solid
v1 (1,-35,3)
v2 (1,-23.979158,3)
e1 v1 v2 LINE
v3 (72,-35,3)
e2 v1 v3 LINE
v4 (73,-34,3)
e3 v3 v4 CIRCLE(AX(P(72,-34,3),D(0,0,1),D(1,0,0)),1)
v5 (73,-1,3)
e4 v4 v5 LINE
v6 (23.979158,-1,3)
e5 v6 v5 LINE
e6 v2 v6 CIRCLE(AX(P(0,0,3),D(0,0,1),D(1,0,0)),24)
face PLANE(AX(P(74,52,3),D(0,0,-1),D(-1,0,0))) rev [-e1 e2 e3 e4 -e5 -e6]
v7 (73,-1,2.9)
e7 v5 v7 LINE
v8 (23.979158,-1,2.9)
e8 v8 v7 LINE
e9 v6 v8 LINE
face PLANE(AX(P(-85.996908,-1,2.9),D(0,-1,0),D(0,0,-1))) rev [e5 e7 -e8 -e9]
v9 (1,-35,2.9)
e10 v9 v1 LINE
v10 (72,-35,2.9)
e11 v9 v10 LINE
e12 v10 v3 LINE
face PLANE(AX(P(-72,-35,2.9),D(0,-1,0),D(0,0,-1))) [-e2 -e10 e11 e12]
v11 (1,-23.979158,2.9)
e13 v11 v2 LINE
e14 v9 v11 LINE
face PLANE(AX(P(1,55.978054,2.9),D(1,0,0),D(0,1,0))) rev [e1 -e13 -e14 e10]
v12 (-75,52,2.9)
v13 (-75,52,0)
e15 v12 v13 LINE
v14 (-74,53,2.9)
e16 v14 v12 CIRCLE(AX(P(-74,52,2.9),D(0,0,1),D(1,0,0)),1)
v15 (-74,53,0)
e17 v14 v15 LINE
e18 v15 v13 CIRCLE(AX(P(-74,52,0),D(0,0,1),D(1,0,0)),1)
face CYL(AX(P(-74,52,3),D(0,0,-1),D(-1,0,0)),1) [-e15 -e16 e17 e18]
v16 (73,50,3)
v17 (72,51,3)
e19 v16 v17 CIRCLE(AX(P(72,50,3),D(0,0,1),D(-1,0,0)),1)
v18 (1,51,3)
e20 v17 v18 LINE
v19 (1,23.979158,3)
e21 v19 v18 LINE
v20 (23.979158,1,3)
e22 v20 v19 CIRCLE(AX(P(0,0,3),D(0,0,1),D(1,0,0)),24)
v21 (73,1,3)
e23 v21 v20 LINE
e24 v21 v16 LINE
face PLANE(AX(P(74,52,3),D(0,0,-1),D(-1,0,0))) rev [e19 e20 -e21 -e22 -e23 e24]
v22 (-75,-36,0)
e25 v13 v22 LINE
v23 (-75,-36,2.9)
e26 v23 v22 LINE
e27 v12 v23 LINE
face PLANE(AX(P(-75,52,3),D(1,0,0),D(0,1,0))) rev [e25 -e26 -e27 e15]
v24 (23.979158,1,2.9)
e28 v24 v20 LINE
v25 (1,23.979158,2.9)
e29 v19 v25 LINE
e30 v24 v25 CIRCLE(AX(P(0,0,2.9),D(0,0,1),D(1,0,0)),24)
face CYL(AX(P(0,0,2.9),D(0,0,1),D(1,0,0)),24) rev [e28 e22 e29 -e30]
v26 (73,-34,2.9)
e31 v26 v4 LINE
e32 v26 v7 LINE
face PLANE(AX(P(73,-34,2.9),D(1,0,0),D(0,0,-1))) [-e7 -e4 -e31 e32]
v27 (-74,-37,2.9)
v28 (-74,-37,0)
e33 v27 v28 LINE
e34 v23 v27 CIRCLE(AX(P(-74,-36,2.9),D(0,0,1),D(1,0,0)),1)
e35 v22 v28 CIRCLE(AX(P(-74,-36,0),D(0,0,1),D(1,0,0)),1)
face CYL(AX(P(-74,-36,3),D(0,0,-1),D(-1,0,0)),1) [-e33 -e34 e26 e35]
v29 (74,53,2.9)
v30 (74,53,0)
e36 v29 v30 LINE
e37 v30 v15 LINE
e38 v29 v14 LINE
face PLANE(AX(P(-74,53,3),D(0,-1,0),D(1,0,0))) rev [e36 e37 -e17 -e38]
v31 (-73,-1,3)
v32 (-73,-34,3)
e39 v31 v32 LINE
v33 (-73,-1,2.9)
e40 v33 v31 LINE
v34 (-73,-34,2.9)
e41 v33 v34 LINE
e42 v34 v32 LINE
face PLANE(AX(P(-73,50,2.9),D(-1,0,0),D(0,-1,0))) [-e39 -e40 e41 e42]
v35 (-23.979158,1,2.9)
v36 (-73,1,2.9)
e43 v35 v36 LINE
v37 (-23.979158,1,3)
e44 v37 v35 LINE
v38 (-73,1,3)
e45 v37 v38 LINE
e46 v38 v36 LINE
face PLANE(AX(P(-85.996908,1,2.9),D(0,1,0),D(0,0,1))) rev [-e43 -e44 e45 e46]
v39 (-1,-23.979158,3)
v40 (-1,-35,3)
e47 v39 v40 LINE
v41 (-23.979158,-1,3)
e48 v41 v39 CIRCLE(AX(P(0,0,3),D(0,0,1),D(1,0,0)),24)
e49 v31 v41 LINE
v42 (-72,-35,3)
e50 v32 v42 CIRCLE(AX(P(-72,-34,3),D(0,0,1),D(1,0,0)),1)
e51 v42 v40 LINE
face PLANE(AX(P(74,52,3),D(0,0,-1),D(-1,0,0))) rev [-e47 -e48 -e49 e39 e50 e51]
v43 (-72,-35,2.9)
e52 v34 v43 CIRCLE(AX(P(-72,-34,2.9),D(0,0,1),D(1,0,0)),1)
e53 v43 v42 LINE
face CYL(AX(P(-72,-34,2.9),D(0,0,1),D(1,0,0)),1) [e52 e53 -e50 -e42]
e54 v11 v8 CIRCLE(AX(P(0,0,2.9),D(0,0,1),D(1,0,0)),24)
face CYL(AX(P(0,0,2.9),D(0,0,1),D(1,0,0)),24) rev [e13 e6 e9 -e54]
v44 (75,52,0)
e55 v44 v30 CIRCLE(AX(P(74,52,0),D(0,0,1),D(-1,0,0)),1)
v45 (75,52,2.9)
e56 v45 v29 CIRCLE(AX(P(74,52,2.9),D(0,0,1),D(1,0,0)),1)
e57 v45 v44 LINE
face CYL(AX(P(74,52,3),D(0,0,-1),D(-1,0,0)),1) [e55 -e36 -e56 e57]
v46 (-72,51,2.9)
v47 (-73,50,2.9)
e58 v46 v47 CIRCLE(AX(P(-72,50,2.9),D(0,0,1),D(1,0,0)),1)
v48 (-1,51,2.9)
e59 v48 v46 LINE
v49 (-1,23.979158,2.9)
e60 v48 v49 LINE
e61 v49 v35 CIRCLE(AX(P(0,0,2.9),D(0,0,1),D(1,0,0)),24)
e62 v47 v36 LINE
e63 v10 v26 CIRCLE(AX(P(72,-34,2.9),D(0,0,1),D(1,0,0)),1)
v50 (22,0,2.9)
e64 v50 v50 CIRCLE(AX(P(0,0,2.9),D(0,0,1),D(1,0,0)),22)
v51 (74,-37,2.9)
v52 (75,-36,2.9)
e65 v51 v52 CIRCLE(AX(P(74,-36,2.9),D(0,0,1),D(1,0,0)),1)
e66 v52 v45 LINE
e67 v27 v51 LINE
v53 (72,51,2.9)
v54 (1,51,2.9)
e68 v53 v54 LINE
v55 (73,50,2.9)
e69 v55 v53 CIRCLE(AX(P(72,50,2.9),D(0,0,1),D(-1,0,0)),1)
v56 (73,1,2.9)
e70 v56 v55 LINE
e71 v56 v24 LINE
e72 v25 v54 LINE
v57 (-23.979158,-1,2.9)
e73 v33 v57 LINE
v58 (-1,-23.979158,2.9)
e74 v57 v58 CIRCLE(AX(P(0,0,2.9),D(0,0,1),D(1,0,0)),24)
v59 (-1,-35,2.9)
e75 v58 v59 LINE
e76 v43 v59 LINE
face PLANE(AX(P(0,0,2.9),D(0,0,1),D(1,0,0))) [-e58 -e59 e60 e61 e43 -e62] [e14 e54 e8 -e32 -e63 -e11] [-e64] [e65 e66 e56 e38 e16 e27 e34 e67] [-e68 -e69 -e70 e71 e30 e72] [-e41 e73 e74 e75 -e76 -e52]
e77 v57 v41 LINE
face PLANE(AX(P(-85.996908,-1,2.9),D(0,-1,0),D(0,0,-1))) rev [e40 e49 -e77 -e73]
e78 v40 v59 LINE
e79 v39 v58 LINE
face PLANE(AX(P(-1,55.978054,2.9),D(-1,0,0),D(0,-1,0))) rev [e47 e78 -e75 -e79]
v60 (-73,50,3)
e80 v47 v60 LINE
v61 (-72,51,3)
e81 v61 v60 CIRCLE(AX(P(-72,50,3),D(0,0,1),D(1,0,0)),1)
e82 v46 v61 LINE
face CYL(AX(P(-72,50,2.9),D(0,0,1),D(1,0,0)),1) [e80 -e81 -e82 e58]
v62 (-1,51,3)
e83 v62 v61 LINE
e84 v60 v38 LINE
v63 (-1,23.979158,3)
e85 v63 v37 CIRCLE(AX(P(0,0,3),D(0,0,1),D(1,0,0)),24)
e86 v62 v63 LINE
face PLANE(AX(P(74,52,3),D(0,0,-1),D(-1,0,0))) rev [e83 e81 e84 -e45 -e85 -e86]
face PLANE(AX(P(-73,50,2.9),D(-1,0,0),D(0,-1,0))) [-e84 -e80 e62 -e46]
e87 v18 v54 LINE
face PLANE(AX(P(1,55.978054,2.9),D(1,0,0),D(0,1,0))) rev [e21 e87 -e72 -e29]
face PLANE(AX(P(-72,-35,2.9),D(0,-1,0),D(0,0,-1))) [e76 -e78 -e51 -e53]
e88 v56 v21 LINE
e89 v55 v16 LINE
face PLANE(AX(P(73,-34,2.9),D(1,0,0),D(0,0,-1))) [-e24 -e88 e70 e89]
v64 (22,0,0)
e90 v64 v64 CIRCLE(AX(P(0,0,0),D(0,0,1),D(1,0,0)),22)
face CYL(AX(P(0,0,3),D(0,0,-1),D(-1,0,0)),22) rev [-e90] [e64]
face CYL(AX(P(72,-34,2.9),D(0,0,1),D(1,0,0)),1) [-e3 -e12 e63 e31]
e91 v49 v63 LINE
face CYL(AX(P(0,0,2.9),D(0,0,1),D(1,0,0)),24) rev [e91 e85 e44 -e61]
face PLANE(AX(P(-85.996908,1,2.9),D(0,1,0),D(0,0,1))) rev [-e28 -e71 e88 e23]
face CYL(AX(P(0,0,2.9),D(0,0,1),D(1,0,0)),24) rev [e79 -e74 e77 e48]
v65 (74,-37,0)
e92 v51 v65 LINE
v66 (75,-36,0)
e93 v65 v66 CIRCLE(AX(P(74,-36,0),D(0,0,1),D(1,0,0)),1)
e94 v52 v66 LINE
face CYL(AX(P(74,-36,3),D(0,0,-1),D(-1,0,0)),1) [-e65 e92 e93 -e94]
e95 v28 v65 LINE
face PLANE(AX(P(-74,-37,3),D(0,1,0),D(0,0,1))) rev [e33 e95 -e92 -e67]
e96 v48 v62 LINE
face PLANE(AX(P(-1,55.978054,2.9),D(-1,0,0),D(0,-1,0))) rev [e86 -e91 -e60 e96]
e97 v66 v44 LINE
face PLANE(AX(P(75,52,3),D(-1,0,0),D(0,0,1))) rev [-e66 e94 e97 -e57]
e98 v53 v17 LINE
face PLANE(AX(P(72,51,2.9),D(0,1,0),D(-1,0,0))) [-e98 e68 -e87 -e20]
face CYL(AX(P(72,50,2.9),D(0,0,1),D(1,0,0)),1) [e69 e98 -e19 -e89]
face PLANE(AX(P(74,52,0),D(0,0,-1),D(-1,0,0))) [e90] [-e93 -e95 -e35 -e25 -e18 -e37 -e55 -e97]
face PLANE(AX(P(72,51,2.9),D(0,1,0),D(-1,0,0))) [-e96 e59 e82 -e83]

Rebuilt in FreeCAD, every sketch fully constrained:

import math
import FreeCAD as App
import Part
import Sketcher

doc = App.newDocument("Part")
params = doc.addObject("Spreadsheet::Sheet", "Params")
for row, (alias, value) in enumerate([
    ("sketch1_diameter", "44 mm"),
    ("sketch1_radius", "1 mm"),
    ("sketch1_width", "148 mm"),
    ("sketch1_height", "88 mm"),
    ("pad1_length", "3 mm"),
    ("sketch2_diameter", "48 mm"),
    ("pocket1_length", "0.1 mm"),
    ("sketch3_radius", "1 mm"),
    ("sketch3_width", "144 mm"),
    ("sketch3_height", "84 mm"),
    ("pocket2_length", "0.1 mm"),
    ("sketch4_width", "2 mm"),
    ("pocket3_length", "0.1 mm"),
    ("sketch5_height", "2 mm"),
    ("pocket4_length", "0.1 mm"),
], start=1):
    params.set(f"A{row}", alias)
    params.set(f"B{row}", "=" + value)
    params.setAlias(f"B{row}", alias)

body = doc.addObject("PartDesign::Body", "Body")

sketch1 = body.newObject("Sketcher::SketchObject", "Sketch")
sketch1.AttachmentSupport = (doc.getObject("XY_Plane"), [""])
sketch1.MapMode = "FlatFace"
sketch1.addGeometry([
    Part.LineSegment(App.Vector(74, 53, 0), App.Vector(-74, 53, 0)),
    Part.ArcOfCircle(Part.Circle(App.Vector(-74, 52, 0), App.Vector(0, 0, 1), 1), math.radians(90), math.radians(180)),
    Part.LineSegment(App.Vector(-75, 52, 0), App.Vector(-75, -36, 0)),
    Part.ArcOfCircle(Part.Circle(App.Vector(-74, -36, 0), App.Vector(0, 0, 1), 1), math.radians(-180), math.radians(-90)),
    Part.LineSegment(App.Vector(-74, -37, 0), App.Vector(74, -37, 0)),
    Part.ArcOfCircle(Part.Circle(App.Vector(74, -36, 0), App.Vector(0, 0, 1), 1), math.radians(-90), math.radians(0)),
    Part.LineSegment(App.Vector(75, -36, 0), App.Vector(75, 52, 0)),
    Part.ArcOfCircle(Part.Circle(App.Vector(74, 52, 0), App.Vector(0, 0, 1), 1), math.radians(0), math.radians(90)),
    Part.Circle(App.Vector(0, 0, 0), App.Vector(0, 0, 1), 22),
], False)
sketch1.addConstraint([
    Sketcher.Constraint("Tangent", 0, 2, 1, 1),
    Sketcher.Constraint("Tangent", 1, 2, 2, 1),
    Sketcher.Constraint("Tangent", 2, 2, 3, 1),
    Sketcher.Constraint("Tangent", 3, 2, 4, 1),
    Sketcher.Constraint("Tangent", 4, 2, 5, 1),
    Sketcher.Constraint("Tangent", 5, 2, 6, 1),
    Sketcher.Constraint("Tangent", 6, 2, 7, 1),
    Sketcher.Constraint("Tangent", 7, 2, 0, 1),
    Sketcher.Constraint("Horizontal", 0),
    Sketcher.Constraint("Vertical", 2),
    Sketcher.Constraint("Horizontal", 4),
    Sketcher.Constraint("Vertical", 6),
    Sketcher.Constraint("Coincident", 8, 3, -1, 1),
    Sketcher.Constraint("Equal", 1, 3),
    Sketcher.Constraint("Equal", 3, 5),
    Sketcher.Constraint("Equal", 5, 7),
    Sketcher.Constraint("Diameter", 8, 44.0),
    Sketcher.Constraint("Radius", 1, 1.0),
    Sketcher.Constraint("DistanceX", 0, 2, 0, 1, 148.0),
    Sketcher.Constraint("DistanceY", 2, 2, 2, 1, 88.0),
    Sketcher.Constraint("DistanceX", 1, 3, -1, 1, 74.0),
    Sketcher.Constraint("DistanceY", -1, 1, 1, 3, 52.0),
])
sketch1.setExpression("Constraints[16]", "Params.sketch1_diameter")
sketch1.setExpression("Constraints[17]", "Params.sketch1_radius")
sketch1.setExpression("Constraints[18]", "Params.sketch1_width")
sketch1.setExpression("Constraints[19]", "Params.sketch1_height")
pad1 = body.newObject("PartDesign::Pad", "Pad")
pad1.Profile = sketch1
pad1.setExpression("Length", "Params.pad1_length")

sketch2 = body.newObject("Sketcher::SketchObject", "Sketch001")
sketch2.AttachmentSupport = (doc.getObject("XY_Plane"), [""])
sketch2.MapMode = "FlatFace"
sketch2.AttachmentOffset = App.Placement(App.Vector(0, 0, 3), App.Rotation())
sketch2.addGeometry(Part.Circle(App.Vector(0, 0, 0), App.Vector(0, 0, 1), 24), False)
sketch2.addConstraint([
    Sketcher.Constraint("Coincident", 0, 3, -1, 1),
    Sketcher.Constraint("Diameter", 0, 48.0),
])
sketch2.setExpression("Constraints[1]", "Params.sketch2_diameter")
pocket1 = body.newObject("PartDesign::Pocket", "Pocket")
pocket1.Profile = sketch2
pocket1.setExpression("Length", "Params.pocket1_length")

sketch3 = body.newObject("Sketcher::SketchObject", "Sketch002")
sketch3.AttachmentSupport = (doc.getObject("XY_Plane"), [""])
sketch3.MapMode = "FlatFace"
sketch3.AttachmentOffset = App.Placement(App.Vector(0, 0, 3), App.Rotation())
sketch3.addGeometry([
    Part.LineSegment(App.Vector(-80.464019, 58.349293, 0), App.Vector(-80.464019, -42.033128, 0)),
    Part.LineSegment(App.Vector(-80.464019, -42.033128, 0), App.Vector(81.254432, -42.033128, 0)),
    Part.LineSegment(App.Vector(81.254432, -42.033128, 0), App.Vector(81.254432, 58.349293, 0)),
    Part.LineSegment(App.Vector(81.254432, 58.349293, 0), App.Vector(-80.464019, 58.349293, 0)),
    Part.LineSegment(App.Vector(-72, 51, 0), App.Vector(72, 51, 0)),
    Part.ArcOfCircle(Part.Circle(App.Vector(72, 50, 0), App.Vector(0, 0, 1), 1), math.radians(0), math.radians(90)),
    Part.LineSegment(App.Vector(73, 50, 0), App.Vector(73, -34, 0)),
    Part.ArcOfCircle(Part.Circle(App.Vector(72, -34, 0), App.Vector(0, 0, 1), 1), math.radians(-90), math.radians(0)),
    Part.LineSegment(App.Vector(72, -35, 0), App.Vector(-72, -35, 0)),
    Part.ArcOfCircle(Part.Circle(App.Vector(-72, -34, 0), App.Vector(0, 0, 1), 1), math.radians(-180), math.radians(-90)),
    Part.LineSegment(App.Vector(-73, -34, 0), App.Vector(-73, 50, 0)),
    Part.ArcOfCircle(Part.Circle(App.Vector(-72, 50, 0), App.Vector(0, 0, 1), 1), math.radians(90), math.radians(180)),
], False)
sketch3.addConstraint([
    Sketcher.Constraint("Coincident", 0, 2, 1, 1),
    Sketcher.Constraint("Coincident", 1, 2, 2, 1),
    Sketcher.Constraint("Coincident", 2, 2, 3, 1),
    Sketcher.Constraint("Coincident", 3, 2, 0, 1),
    Sketcher.Constraint("Tangent", 4, 2, 5, 2),
    Sketcher.Constraint("Tangent", 5, 1, 6, 1),
    Sketcher.Constraint("Tangent", 6, 2, 7, 2),
    Sketcher.Constraint("Tangent", 7, 1, 8, 1),
    Sketcher.Constraint("Tangent", 8, 2, 9, 2),
    Sketcher.Constraint("Tangent", 9, 1, 10, 1),
    Sketcher.Constraint("Tangent", 10, 2, 11, 2),
    Sketcher.Constraint("Tangent", 11, 1, 4, 1),
    Sketcher.Constraint("Vertical", 0),
    Sketcher.Constraint("Horizontal", 1),
    Sketcher.Constraint("Vertical", 2),
    Sketcher.Constraint("Horizontal", 3),
    Sketcher.Constraint("Horizontal", 4),
    Sketcher.Constraint("Vertical", 6),
    Sketcher.Constraint("Horizontal", 8),
    Sketcher.Constraint("Vertical", 10),
    Sketcher.Constraint("Equal", 5, 7),
    Sketcher.Constraint("Equal", 7, 9),
    Sketcher.Constraint("Equal", 9, 11),
    Sketcher.Constraint("Radius", 5, 1.0),
    Sketcher.Constraint("DistanceX", 4, 1, 4, 2, 144.0),
    Sketcher.Constraint("DistanceY", 6, 2, 6, 1, 84.0),
    Sketcher.Constraint("DistanceX", -1, 1, 5, 3, 72.0),
    Sketcher.Constraint("DistanceY", -1, 1, 5, 3, 50.0),
    Sketcher.Constraint("DistanceX", 1, 1, 1, 2, 161.71845),
    Sketcher.Constraint("DistanceY", 0, 2, 0, 1, 100.38242),
    Sketcher.Constraint("DistanceX", 0, 2, -1, 1, 80.464019),
    Sketcher.Constraint("DistanceY", 0, 2, -1, 1, 42.033128),
])
sketch3.setExpression("Constraints[23]", "Params.sketch3_radius")
sketch3.setExpression("Constraints[24]", "Params.sketch3_width")
sketch3.setExpression("Constraints[25]", "Params.sketch3_height")
pocket2 = body.newObject("PartDesign::Pocket", "Pocket001")
pocket2.Profile = sketch3
pocket2.setExpression("Length", "Params.pocket2_length")

sketch4 = body.newObject("Sketcher::SketchObject", "Sketch003")
sketch4.AttachmentSupport = (doc.getObject("XY_Plane"), [""])
sketch4.MapMode = "FlatFace"
sketch4.AttachmentOffset = App.Placement(App.Vector(0, 0, 3), App.Rotation())
sketch4.addGeometry([
    Part.LineSegment(App.Vector(-1, 55.978054, 0), App.Vector(-1, -45.669026, 0)),
    Part.LineSegment(App.Vector(-1, -45.669026, 0), App.Vector(1, -45.669026, 0)),
    Part.LineSegment(App.Vector(1, -45.669026, 0), App.Vector(1, 55.978054, 0)),
    Part.LineSegment(App.Vector(1, 55.978054, 0), App.Vector(-1, 55.978054, 0)),
], False)
sketch4.addConstraint([
    Sketcher.Constraint("Coincident", 0, 2, 1, 1),
    Sketcher.Constraint("Coincident", 1, 2, 2, 1),
    Sketcher.Constraint("Coincident", 2, 2, 3, 1),
    Sketcher.Constraint("Coincident", 3, 2, 0, 1),
    Sketcher.Constraint("Vertical", 0),
    Sketcher.Constraint("Horizontal", 1),
    Sketcher.Constraint("Vertical", 2),
    Sketcher.Constraint("Horizontal", 3),
    Sketcher.Constraint("DistanceX", 1, 1, 1, 2, 2.0),
    Sketcher.Constraint("DistanceX", 0, 2, -1, 1, 1.0),
    Sketcher.Constraint("DistanceY", 0, 2, 0, 1, 101.647081),
    Sketcher.Constraint("DistanceY", 0, 2, -1, 1, 45.669026),
])
sketch4.setExpression("Constraints[8]", "Params.sketch4_width")
pocket3 = body.newObject("PartDesign::Pocket", "Pocket002")
pocket3.Profile = sketch4
pocket3.setExpression("Length", "Params.pocket3_length")

sketch5 = body.newObject("Sketcher::SketchObject", "Sketch004")
sketch5.AttachmentSupport = (doc.getObject("XY_Plane"), [""])
sketch5.MapMode = "FlatFace"
sketch5.AttachmentOffset = App.Placement(App.Vector(0, 0, 3), App.Rotation())
sketch5.addGeometry([
    Part.LineSegment(App.Vector(-85.996908, 1, 0), App.Vector(-85.996908, -1, 0)),
    Part.LineSegment(App.Vector(-85.996908, -1, 0), App.Vector(99.433925, -1, 0)),
    Part.LineSegment(App.Vector(99.433925, -1, 0), App.Vector(99.433925, 1, 0)),
    Part.LineSegment(App.Vector(99.433925, 1, 0), App.Vector(-85.996908, 1, 0)),
], False)
sketch5.addConstraint([
    Sketcher.Constraint("Coincident", 0, 2, 1, 1),
    Sketcher.Constraint("Coincident", 1, 2, 2, 1),
    Sketcher.Constraint("Coincident", 2, 2, 3, 1),
    Sketcher.Constraint("Coincident", 3, 2, 0, 1),
    Sketcher.Constraint("Vertical", 0),
    Sketcher.Constraint("Horizontal", 1),
    Sketcher.Constraint("Vertical", 2),
    Sketcher.Constraint("Horizontal", 3),
    Sketcher.Constraint("DistanceY", 0, 2, 0, 1, 2.0),
    Sketcher.Constraint("DistanceY", 0, 2, -1, 1, 1.0),
    Sketcher.Constraint("DistanceX", 1, 1, 1, 2, 185.430833),
    Sketcher.Constraint("DistanceX", 0, 2, -1, 1, 85.996908),
])
sketch5.setExpression("Constraints[8]", "Params.sketch5_height")
pocket4 = body.newObject("PartDesign::Pocket", "Pocket003")
pocket4.Profile = sketch5
pocket4.setExpression("Length", "Params.pocket4_length")

doc.recompute()
